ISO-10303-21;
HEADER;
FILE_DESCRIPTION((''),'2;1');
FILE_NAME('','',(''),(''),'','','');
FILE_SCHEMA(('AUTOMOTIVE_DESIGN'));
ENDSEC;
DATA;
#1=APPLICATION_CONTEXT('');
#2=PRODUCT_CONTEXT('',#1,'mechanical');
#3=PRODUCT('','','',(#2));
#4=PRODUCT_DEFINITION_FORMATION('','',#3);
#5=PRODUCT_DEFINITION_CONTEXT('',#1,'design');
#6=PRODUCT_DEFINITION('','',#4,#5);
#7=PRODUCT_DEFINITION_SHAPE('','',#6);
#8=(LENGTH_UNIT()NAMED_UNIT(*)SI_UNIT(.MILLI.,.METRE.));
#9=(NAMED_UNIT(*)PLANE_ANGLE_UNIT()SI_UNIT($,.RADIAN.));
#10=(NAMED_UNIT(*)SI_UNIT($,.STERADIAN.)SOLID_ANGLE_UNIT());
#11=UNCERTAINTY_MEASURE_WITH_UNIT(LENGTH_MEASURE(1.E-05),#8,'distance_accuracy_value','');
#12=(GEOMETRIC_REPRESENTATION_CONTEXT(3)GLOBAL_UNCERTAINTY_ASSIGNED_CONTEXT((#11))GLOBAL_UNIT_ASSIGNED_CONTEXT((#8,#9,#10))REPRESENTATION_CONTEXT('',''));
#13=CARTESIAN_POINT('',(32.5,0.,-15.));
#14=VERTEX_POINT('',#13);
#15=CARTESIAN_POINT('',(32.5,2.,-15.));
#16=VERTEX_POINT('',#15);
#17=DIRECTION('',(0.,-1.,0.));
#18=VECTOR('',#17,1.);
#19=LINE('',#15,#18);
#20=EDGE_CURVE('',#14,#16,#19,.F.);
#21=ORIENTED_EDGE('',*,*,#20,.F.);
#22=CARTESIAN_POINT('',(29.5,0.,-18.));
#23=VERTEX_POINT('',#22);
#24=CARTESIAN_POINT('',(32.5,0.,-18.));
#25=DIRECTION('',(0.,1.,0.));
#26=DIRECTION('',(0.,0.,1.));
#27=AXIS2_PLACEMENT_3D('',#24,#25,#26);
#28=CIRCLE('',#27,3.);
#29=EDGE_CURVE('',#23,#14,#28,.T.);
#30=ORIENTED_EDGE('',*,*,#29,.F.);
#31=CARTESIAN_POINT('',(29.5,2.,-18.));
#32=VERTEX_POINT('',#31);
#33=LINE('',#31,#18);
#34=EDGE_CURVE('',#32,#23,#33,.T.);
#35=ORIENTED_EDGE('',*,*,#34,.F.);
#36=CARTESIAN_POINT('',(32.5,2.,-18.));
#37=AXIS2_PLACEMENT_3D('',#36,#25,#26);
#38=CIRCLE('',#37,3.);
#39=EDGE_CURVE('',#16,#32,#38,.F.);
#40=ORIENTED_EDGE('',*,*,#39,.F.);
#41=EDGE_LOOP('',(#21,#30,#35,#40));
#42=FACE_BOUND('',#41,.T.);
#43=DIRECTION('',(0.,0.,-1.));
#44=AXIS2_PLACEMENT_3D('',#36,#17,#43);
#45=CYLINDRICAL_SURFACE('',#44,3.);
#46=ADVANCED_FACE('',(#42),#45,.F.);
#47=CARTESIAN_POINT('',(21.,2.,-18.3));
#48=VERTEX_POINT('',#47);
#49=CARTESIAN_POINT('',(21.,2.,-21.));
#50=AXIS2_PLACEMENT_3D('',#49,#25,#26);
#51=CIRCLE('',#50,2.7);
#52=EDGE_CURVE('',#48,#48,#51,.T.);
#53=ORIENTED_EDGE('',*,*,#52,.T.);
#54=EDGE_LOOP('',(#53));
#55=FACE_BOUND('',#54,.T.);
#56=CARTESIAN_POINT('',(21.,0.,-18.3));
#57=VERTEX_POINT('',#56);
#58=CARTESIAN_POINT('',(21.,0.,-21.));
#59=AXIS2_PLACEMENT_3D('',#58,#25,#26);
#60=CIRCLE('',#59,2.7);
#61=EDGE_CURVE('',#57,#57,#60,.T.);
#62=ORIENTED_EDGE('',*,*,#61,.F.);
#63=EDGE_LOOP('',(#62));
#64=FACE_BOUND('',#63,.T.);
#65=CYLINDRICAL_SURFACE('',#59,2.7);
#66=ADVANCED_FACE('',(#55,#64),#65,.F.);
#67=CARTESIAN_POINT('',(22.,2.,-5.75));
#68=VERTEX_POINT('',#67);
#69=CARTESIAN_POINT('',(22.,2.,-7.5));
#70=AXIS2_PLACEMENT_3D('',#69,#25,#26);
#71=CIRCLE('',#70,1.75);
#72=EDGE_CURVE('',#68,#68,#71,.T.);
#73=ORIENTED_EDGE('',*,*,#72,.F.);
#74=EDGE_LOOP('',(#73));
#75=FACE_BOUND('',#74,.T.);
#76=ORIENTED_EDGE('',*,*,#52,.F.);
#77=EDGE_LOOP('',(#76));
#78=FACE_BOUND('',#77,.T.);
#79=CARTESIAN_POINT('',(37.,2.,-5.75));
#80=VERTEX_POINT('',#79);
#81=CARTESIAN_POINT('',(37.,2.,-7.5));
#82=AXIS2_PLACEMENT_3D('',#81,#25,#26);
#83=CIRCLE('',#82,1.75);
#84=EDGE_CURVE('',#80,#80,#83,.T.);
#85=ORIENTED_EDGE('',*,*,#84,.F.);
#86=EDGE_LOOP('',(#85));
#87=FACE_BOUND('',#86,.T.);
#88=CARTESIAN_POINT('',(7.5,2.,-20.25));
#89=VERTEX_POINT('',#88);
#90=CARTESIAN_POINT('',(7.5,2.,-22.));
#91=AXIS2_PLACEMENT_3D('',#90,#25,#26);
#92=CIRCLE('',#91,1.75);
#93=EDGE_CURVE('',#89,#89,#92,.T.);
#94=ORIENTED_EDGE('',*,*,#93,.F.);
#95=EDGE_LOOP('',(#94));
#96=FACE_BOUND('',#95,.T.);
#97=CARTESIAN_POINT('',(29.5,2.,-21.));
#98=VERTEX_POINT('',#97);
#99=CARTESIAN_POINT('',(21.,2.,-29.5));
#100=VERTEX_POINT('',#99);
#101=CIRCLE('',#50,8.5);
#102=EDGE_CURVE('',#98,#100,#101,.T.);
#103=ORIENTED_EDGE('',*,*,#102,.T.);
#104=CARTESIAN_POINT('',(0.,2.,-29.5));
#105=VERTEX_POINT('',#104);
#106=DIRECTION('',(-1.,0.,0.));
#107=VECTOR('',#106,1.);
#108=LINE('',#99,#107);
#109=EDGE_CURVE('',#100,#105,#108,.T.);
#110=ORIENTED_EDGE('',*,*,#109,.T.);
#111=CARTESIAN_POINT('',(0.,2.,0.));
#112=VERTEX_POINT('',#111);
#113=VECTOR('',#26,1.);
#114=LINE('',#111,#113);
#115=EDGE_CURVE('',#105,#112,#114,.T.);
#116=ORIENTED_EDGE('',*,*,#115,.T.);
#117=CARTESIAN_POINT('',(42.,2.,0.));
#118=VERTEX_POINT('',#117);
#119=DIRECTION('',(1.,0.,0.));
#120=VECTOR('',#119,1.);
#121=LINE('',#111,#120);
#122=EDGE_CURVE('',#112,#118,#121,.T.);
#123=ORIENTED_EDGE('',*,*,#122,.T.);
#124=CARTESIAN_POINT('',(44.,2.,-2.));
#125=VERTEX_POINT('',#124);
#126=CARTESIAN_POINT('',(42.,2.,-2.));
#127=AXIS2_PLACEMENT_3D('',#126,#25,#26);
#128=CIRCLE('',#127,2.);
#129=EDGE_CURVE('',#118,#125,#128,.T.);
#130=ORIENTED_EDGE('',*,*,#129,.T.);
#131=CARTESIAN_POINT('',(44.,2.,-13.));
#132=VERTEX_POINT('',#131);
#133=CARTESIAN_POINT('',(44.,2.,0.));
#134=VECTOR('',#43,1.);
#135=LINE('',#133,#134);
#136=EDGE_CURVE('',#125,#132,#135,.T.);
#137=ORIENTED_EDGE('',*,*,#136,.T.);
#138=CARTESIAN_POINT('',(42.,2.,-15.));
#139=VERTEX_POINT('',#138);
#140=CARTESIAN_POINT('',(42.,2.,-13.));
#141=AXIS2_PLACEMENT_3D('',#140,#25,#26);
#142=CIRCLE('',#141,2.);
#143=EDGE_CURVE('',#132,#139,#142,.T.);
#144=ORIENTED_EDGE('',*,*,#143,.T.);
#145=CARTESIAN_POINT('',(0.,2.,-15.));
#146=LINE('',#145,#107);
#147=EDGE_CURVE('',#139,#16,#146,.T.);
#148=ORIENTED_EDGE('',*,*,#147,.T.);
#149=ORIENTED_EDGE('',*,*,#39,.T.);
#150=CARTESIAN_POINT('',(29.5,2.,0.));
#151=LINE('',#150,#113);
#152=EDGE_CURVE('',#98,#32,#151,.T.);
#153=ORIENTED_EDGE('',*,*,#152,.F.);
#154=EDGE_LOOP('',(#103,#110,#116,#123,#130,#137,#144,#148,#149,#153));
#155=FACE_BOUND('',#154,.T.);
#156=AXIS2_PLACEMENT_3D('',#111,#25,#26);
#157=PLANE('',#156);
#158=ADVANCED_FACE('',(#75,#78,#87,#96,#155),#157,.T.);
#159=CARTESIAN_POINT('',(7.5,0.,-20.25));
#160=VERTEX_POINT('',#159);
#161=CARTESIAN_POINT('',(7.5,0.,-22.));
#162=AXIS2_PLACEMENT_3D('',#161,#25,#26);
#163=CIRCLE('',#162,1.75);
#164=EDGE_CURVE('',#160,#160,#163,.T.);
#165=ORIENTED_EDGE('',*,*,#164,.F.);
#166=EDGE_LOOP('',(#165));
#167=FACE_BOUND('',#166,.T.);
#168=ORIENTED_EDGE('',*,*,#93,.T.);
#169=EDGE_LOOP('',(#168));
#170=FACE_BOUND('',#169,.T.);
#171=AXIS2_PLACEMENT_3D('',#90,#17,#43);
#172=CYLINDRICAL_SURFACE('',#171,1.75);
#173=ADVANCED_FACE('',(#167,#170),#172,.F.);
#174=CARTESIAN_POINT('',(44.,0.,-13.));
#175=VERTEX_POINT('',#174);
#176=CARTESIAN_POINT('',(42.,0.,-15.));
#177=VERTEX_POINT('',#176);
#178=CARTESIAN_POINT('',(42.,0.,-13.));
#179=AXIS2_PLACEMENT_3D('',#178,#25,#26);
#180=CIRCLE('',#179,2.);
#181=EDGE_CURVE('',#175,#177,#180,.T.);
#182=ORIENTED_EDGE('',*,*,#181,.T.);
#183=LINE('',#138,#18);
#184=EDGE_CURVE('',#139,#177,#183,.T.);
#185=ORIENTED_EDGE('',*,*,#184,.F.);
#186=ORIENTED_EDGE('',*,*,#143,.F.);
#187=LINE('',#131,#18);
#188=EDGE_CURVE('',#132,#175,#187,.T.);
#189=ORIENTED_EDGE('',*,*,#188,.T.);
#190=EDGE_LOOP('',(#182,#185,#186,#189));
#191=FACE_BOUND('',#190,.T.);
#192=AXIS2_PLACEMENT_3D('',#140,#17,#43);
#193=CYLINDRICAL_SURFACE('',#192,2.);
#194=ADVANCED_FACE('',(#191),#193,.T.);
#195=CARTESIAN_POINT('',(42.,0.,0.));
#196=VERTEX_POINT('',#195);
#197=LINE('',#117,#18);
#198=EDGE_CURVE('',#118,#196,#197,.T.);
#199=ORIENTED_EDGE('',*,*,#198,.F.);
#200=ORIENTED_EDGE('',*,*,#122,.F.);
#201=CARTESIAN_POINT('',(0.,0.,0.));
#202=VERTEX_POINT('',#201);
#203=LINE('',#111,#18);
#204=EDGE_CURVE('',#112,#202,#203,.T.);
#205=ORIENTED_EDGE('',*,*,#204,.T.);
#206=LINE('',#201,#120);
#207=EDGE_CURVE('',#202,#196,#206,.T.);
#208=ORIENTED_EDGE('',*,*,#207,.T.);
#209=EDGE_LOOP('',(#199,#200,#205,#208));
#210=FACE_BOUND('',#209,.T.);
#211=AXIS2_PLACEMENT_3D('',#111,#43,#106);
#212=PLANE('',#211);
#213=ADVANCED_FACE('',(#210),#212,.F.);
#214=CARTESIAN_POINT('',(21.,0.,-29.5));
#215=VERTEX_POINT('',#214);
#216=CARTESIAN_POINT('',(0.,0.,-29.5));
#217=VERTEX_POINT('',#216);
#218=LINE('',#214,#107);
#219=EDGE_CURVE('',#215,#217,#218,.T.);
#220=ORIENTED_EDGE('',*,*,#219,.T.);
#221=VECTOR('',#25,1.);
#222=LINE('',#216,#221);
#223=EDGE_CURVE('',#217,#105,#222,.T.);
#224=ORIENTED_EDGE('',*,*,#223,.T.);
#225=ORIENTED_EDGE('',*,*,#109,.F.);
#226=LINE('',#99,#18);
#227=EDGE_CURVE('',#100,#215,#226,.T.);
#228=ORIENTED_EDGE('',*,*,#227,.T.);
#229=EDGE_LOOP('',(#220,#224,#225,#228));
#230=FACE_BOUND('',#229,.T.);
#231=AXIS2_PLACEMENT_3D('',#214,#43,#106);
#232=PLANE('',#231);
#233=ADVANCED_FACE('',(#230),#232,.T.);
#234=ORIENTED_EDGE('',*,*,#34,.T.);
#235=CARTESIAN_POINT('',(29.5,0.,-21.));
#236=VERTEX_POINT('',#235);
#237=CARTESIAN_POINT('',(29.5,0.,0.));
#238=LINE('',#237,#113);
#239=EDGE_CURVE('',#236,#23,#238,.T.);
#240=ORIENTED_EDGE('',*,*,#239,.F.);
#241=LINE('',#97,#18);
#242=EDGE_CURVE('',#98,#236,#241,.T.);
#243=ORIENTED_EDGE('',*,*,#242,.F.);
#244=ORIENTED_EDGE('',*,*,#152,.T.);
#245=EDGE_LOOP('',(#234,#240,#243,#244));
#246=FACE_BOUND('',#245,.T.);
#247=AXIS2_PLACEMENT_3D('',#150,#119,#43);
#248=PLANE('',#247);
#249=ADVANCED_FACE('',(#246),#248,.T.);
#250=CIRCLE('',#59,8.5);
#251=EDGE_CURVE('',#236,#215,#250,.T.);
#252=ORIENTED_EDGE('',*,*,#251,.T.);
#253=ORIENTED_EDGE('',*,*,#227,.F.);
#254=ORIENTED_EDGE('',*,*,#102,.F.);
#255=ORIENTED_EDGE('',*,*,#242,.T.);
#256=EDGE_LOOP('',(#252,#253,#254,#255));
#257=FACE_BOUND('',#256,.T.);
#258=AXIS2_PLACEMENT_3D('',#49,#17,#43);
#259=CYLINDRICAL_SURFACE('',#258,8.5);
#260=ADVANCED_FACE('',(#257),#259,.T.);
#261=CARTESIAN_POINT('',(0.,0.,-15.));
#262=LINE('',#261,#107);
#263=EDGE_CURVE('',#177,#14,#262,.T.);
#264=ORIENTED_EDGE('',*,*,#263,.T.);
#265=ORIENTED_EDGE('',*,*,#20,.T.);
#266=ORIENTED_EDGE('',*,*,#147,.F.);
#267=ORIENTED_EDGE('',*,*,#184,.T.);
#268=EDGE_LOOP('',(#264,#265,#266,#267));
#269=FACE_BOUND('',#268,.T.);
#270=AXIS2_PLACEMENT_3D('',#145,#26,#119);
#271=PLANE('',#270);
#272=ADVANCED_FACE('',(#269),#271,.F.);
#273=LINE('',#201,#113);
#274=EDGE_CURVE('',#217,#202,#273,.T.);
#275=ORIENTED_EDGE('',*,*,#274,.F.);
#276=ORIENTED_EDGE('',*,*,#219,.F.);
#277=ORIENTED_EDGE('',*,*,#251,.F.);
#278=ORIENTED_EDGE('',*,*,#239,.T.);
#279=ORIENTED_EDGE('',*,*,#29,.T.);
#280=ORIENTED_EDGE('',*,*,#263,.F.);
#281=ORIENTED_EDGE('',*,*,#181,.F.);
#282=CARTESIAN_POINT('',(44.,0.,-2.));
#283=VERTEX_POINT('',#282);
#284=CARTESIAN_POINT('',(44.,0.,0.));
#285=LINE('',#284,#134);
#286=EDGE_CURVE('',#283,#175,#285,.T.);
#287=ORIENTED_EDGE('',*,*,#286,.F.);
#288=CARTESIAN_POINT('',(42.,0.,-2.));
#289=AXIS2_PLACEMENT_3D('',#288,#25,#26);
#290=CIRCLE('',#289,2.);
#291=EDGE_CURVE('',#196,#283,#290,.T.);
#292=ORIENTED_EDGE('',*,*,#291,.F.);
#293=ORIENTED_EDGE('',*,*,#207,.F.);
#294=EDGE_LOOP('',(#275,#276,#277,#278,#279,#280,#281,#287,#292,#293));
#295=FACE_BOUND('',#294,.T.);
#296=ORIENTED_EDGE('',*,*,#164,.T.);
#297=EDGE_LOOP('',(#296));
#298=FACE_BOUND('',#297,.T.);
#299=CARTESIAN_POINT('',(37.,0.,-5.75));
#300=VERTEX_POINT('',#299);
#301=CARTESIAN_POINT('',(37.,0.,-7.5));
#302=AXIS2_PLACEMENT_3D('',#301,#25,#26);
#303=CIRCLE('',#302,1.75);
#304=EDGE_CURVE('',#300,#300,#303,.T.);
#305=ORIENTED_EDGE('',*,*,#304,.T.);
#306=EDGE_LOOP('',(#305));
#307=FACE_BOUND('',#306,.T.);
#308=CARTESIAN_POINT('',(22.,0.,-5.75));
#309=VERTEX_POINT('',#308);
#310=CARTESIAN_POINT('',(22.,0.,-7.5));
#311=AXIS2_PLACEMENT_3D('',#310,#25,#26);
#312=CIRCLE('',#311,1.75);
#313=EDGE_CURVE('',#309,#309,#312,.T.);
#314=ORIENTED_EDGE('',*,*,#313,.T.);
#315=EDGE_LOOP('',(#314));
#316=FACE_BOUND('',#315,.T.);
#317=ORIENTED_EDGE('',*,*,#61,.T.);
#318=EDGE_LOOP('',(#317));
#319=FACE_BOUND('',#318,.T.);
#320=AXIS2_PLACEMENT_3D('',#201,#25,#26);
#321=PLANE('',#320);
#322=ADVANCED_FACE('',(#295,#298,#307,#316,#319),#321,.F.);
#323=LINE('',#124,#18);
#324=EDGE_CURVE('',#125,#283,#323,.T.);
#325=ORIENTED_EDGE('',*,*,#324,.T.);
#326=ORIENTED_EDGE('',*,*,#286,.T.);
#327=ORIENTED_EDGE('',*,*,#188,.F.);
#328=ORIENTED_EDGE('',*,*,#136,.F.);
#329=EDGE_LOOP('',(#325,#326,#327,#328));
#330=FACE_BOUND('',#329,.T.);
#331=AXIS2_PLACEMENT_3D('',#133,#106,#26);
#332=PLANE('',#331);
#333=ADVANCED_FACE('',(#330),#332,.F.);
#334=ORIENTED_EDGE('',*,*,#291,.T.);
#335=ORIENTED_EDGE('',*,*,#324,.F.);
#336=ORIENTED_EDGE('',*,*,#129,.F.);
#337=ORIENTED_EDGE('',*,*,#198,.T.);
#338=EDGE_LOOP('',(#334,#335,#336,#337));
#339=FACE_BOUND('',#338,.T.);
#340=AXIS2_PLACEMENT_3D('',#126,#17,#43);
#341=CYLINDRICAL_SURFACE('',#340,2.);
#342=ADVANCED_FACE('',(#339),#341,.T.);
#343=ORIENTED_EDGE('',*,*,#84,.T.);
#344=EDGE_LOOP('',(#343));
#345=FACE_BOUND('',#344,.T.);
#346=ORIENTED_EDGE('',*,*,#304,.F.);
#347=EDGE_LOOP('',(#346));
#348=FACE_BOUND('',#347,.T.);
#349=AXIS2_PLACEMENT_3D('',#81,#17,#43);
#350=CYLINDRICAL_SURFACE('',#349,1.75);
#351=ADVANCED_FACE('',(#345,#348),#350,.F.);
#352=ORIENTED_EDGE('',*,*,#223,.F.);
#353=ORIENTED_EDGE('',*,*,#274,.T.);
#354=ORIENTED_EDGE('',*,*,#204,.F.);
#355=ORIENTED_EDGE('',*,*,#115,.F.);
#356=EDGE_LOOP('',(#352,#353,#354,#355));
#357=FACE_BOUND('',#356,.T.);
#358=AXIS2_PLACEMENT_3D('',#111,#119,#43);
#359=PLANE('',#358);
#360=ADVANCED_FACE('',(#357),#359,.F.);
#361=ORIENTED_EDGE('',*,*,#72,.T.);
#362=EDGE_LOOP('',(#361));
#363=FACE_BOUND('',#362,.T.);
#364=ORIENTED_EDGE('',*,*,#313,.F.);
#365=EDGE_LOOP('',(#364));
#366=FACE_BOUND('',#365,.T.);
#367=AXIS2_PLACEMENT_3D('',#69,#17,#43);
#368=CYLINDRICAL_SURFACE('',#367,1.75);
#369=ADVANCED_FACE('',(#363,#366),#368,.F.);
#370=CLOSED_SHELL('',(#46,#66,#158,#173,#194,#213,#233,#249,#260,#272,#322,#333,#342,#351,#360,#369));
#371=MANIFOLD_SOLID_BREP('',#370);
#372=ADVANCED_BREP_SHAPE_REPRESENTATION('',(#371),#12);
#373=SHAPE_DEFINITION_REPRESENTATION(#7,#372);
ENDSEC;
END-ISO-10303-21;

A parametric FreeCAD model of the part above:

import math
import FreeCAD as App
import Part
import Sketcher
from FreeCAD import Vector
Q = App.Units.Quantity


def edges_at(feature, points):
    """Names of the edges that pass closest to the given points."""
    edges = feature.Shape.Edges
    near = lambda p: min(range(len(edges)), key=lambda i: edges[i].distToShape(Part.Vertex(*p))[0])
    return sorted({f"Edge{near(p) + 1}" for p in points})


def add_polygon(sketch, points):
    """Adds a closed chain of lines whose ends are joined by coincident constraints."""
    first, n = sketch.GeometryCount, len(points)
    for a, b in zip(points, points[1:] + points[:1]):
        sketch.addGeometry(Part.LineSegment(App.Vector(*a, 0), App.Vector(*b, 0)), False)
    for i in range(n):
        sketch.addConstraint(Sketcher.Constraint("Coincident", first + i, 2, first + (i + 1) % n, 1))

doc = App.newDocument("Part")
params = doc.addObject("Spreadsheet::Sheet", "Params")
for row, (alias, value) in enumerate([
    ("sketch1_diameter", "10 mm"),
    ("sketch1_radius", "2 mm"),
    ("sketch1_diameter2", "3.5 mm"),
    ("sketch1_radius2", "8.5 mm"),
    ("sketch1_width", "42 mm"),
    ("pad1_length", "2 mm"),
    ("fillet_radius", "3 mm"),
    ("sketch2_diameter", "10 mm"),
    ("sketch2_diameter2", "5.4 mm"),
    ("pad2_length", "2 mm"),
    ("sketch3_width", "21 mm"),
    ("sketch3_height", "2.5 mm"),
    ("pad3_length", "2 mm"),
], start=1):
    params.set(f"A{row}", alias)
    params.set(f"B{row}", "=" + value)
    params.setAlias(f"B{row}", alias)

body = doc.addObject("PartDesign::Body", "Body")

sketch1 = body.newObject("Sketcher::SketchObject", "Sketch")
sketch1.AttachmentSupport = (doc.getObject("XZ_Plane"), [""])
sketch1.MapMode = "FlatFace"
sketch1.addGeometry(Part.LineSegment(Vector(0, -27, 0), Vector(0, 0, 0)), False)
sketch1.addGeometry(Part.LineSegment(Vector(0, 0, 0), Vector(42, 0, 0)), False)
sketch1.addGeometry(Part.ArcOfCircle(Part.Circle(Vector(42, -2, 0), Vector(0, 0, 1), 2), math.radians(0), math.radians(90)), False)
sketch1.addGeometry(Part.LineSegment(Vector(44, -2, 0), Vector(44, -13, 0)), False)
sketch1.addGeometry(Part.ArcOfCircle(Part.Circle(Vector(42, -13, 0), Vector(0, 0, 1), 2), math.radians(-90), math.radians(0)), False)
sketch1.addGeometry(Part.LineSegment(Vector(42, -15, 0), Vector(29.5, -15, 0)), False)
sketch1.addGeometry(Part.LineSegment(Vector(29.5, -15, 0), Vector(29.5, -21, 0)), False)
sketch1.addGeometry(Part.ArcOfCircle(Part.Circle(Vector(21, -21, 0), Vector(0, 0, 1), 8.5), math.radians(-90), math.radians(0)), False)
sketch1.addGeometry(Part.LineSegment(Vector(21, -29.5, 0), Vector(0, -27, 0)), False)
sketch1.addGeometry(Part.Circle(Vector(22, -7.5, 0), Vector(0, 0, 1), 1.8), False)
sketch1.addGeometry(Part.Circle(Vector(37, -7.5, 0), Vector(0, 0, 1), 1.8), False)
sketch1.addGeometry(Part.Circle(Vector(7.5, -22, 0), Vector(0, 0, 1), 1.8), False)
sketch1.addGeometry(Part.Circle(Vector(21, -21, 0), Vector(0, 0, 1), 5), False)
sketch1.addConstraint(Sketcher.Constraint("Coincident", 0, 2, 1, 1))
sketch1.addConstraint(Sketcher.Constraint("Tangent", 1, 2, 2, 2))
sketch1.addConstraint(Sketcher.Constraint("Tangent", 2, 1, 3, 1))
sketch1.addConstraint(Sketcher.Constraint("Tangent", 3, 2, 4, 2))
sketch1.addConstraint(Sketcher.Constraint("Tangent", 4, 1, 5, 1))
sketch1.addConstraint(Sketcher.Constraint("Coincident", 5, 2, 6, 1))
sketch1.addConstraint(Sketcher.Constraint("Tangent", 6, 2, 7, 2))
sketch1.addConstraint(Sketcher.Constraint("Coincident", 7, 1, 8, 1))
sketch1.addConstraint(Sketcher.Constraint("Coincident", 8, 2, 0, 1))
sketch1.addConstraint(Sketcher.Constraint("Vertical", 0))
sketch1.addConstraint(Sketcher.Constraint("Horizontal", 1))
sketch1.addConstraint(Sketcher.Constraint("Vertical", 3))
sketch1.addConstraint(Sketcher.Constraint("Horizontal", 5))
sketch1.addConstraint(Sketcher.Constraint("Vertical", 6))
sketch1.addConstraint(Sketcher.Constraint("Coincident", 0, 2, -1, 1))
sketch1.addConstraint(Sketcher.Constraint("Coincident", 12, 3, 7, 3))
sketch1.addConstraint(Sketcher.Constraint("Equal", 2, 4))
sketch1.addConstraint(Sketcher.Constraint("Equal", 9, 10))
sketch1.addConstraint(Sketcher.Constraint("Equal", 10, 11))
sketch1.addConstraint(Sketcher.Constraint("Horizontal", 9, 3, 10, 3))
sketch1.addConstraint(Sketcher.Constraint("Vertical", 12, 3, 7, 1))
sketch1.addConstraint(Sketcher.Constraint("Diameter", 12, Q("10 mm")))
sketch1.addConstraint(Sketcher.Constraint("Radius", 2, Q("2 mm")))
sketch1.addConstraint(Sketcher.Constraint("Diameter", 9, Q("3.5 mm")))
sketch1.addConstraint(Sketcher.Constraint("Radius", 7, Q("8.5 mm")))
sketch1.addConstraint(Sketcher.Constraint("DistanceX", 1, 1, 1, 2, Q("42 mm")))
sketch1.addConstraint(Sketcher.Constraint("DistanceY", 0, 1, 0, 2, Q("27 mm")))
sketch1.addConstraint(Sketcher.Constraint("DistanceY", 3, 2, 3, 1, Q("11 mm")))
sketch1.addConstraint(Sketcher.Constraint("DistanceY", 6, 2, 6, 1, Q("6 mm")))
sketch1.addConstraint(Sketcher.Constraint("DistanceX", 5, 2, 5, 1, Q("12.5 mm")))
sketch1.addConstraint(Sketcher.Constraint("DistanceX", -1, 1, 9, 3, Q("22 mm")))
sketch1.addConstraint(Sketcher.Constraint("DistanceX", -1, 1, 10, 3, Q("37 mm")))
sketch1.addConstraint(Sketcher.Constraint("DistanceY", 11, 3, -1, 1, Q("22 mm")))
sketch1.addConstraint(Sketcher.Constraint("DistanceY", 9, 3, -1, 1, Q("7.5 mm")))
sketch1.addConstraint(Sketcher.Constraint("DistanceX", -1, 1, 11, 3, Q("7.5 mm")))
sketch1.setExpression("Constraints[21]", "Params.sketch1_diameter")
sketch1.setExpression("Constraints[22]", "Params.sketch1_radius")
sketch1.setExpression("Constraints[23]", "Params.sketch1_diameter2")
sketch1.setExpression("Constraints[24]", "Params.sketch1_radius2")
sketch1.setExpression("Constraints[25]", "Params.sketch1_width")
pad1 = body.newObject("PartDesign::Pad", "Pad")
pad1.Profile = sketch1
pad1.setExpression("Length", "Params.pad1_length")
pad1.Reversed = True
doc.recompute()

fillet = body.newObject("PartDesign::Fillet", "Fillet")
fillet.Base = (pad1, edges_at(pad1, [(29.5, 1, -15)]))
fillet.setExpression("Radius", "Params.fillet_radius")

sketch2 = body.newObject("Sketcher::SketchObject", "Sketch001")
sketch2.AttachmentSupport = (doc.getObject("XZ_Plane"), [""])
sketch2.MapMode = "FlatFace"
sketch2.addGeometry(Part.Circle(Vector(21, -21, 0), Vector(0, 0, 1), 5), False)
sketch2.addGeometry(Part.Circle(Vector(21, -21, 0), Vector(0, 0, 1), 2.7), False)
sketch2.addConstraint(Sketcher.Constraint("Coincident", 1, 3, 0, 3))
sketch2.addConstraint(Sketcher.Constraint("Diameter", 0, Q("10 mm")))
sketch2.addConstraint(Sketcher.Constraint("Diameter", 1, Q("5.4 mm")))
sketch2.addConstraint(Sketcher.Constraint("DistanceX", -1, 1, 0, 3, Q("21 mm")))
sketch2.addConstraint(Sketcher.Constraint("DistanceY", 0, 3, -1, 1, Q("21 mm")))
sketch2.setExpression("Constraints[1]", "Params.sketch2_diameter")
sketch2.setExpression("Constraints[2]", "Params.sketch2_diameter2")
pad2 = body.newObject("PartDesign::Pad", "Pad001")
pad2.Profile = sketch2
pad2.setExpression("Length", "Params.pad2_length")
pad2.Reversed = True

sketch3 = body.newObject("Sketcher::SketchObject", "Sketch002")
sketch3.AttachmentSupport = (doc.getObject("XZ_Plane"), [""])
sketch3.MapMode = "FlatFace"
sketch3.AttachmentOffset = App.Placement(Vector(0, 0, -2), App.Rotation())
add_polygon(sketch3, [(21, -29.5), (0, -29.5), (0, -27)])
sketch3.addConstraint(Sketcher.Constraint("Horizontal", 0))
sketch3.addConstraint(Sketcher.Constraint("Vertical", 1))
sketch3.addConstraint(Sketcher.Constraint("PointOnObject", 0, 2, -2))
sketch3.addConstraint(Sketcher.Constraint("DistanceX", 0, 2, 0, 1, Q("21 mm")))
sketch3.addConstraint(Sketcher.Constraint("DistanceY", 1, 1, 1, 2, Q("2.5 mm")))
sketch3.addConstraint(Sketcher.Constraint("DistanceY", 1, 2, -1, 1, Q("27 mm")))
sketch3.setExpression("Constraints[6]", "Params.sketch3_width")
sketch3.setExpression("Constraints[7]", "Params.sketch3_height")
pad3 = body.newObject("PartDesign::Pad", "Pad002")
pad3.Profile = sketch3
pad3.setExpression("Length", "Params.pad3_length")

doc.recompute()
